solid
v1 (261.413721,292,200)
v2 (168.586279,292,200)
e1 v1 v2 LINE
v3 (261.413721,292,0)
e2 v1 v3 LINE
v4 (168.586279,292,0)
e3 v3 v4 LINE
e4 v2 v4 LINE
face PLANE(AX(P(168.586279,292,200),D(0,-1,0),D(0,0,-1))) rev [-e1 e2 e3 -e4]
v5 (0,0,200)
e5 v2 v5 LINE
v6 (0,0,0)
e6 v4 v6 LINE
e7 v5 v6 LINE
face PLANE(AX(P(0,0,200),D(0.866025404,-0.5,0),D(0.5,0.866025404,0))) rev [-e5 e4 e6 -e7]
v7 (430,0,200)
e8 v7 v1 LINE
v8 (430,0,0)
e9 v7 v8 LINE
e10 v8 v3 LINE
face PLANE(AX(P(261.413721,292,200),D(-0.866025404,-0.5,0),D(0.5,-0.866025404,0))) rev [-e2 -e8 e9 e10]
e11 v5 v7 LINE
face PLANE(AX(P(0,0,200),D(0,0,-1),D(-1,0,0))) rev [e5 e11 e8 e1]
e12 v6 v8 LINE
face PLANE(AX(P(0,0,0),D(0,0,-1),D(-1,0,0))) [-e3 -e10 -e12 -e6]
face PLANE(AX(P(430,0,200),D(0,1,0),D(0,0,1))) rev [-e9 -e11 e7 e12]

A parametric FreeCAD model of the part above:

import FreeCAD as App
import Part
import Sketcher

V = App.Vector
Q = App.Units.Quantity


def add_polygon(sketch, points):
    """Adds a closed chain of lines whose ends are joined by coincident constraints."""
    first, n = sketch.GeometryCount, len(points)
    for a, b in zip(points, points[1:] + points[:1]):
        sketch.addGeometry(Part.LineSegment(App.Vector(*a, 0), App.Vector(*b, 0)), False)
    for i in range(n):
        sketch.addConstraint(Sketcher.Constraint("Coincident", first + i, 2, first + (i + 1) % n, 1))

doc = App.newDocument("Part")
body = doc.addObject("PartDesign::Body", "Body")

# Sketch on XY plane
sketch1 = body.newObject("Sketcher::SketchObject", "Sketch")
sketch1.AttachmentSupport = (doc.getObject("XY_Plane"), [""])
sketch1.MapMode = "FlatFace"
add_polygon(sketch1, [(168.586279, 292), (0, 0), (430, 0), (261.413721, 292)])  # lines 0-3
sketch1.addConstraint([
    Sketcher.Constraint("Horizontal", 1),
    Sketcher.Constraint("Horizontal", 3),
    Sketcher.Constraint("Coincident", 0, 2, -1, 1),
    Sketcher.Constraint("Equal", 0, 2),
    Sketcher.Constraint("DistanceX", 1, 1, 1, 2, 430.0),
    Sketcher.Constraint("Angle", 0, Q("-120 deg")),
    Sketcher.Constraint("DistanceY", -1, 1, 2, 2, 292.0),
])
pad1 = body.newObject("PartDesign::Pad", "Pad")
pad1.Profile = sketch1
pad1.Length = 200

doc.recompute()
